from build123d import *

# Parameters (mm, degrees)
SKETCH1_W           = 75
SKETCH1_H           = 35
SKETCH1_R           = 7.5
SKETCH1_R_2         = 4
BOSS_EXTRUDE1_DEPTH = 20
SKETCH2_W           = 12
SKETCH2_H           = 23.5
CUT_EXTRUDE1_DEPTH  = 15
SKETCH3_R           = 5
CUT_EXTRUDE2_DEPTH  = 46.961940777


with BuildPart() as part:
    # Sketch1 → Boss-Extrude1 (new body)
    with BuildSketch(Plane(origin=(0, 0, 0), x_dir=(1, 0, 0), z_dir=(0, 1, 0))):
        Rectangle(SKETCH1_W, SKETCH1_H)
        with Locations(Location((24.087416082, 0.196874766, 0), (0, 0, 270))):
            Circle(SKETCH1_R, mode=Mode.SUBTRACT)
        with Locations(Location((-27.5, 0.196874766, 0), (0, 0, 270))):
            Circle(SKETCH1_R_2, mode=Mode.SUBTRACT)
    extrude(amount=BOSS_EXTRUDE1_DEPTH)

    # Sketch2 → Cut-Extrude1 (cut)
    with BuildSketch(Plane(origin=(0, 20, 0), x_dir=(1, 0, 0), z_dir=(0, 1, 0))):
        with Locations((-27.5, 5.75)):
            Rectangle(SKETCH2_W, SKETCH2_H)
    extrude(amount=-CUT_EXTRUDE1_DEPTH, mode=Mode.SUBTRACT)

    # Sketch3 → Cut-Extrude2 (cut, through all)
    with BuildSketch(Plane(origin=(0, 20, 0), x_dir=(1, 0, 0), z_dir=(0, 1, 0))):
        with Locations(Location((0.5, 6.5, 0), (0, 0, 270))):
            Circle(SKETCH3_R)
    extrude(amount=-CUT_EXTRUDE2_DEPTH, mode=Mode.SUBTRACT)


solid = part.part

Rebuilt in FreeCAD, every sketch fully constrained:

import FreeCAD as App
import Part
import Sketcher


def add_polygon(sketch, points):
    """Adds a closed chain of lines whose ends are joined by coincident constraints."""
    first, n = sketch.GeometryCount, len(points)
    for a, b in zip(points, points[1:] + points[:1]):
        sketch.addGeometry(Part.LineSegment(App.Vector(*a, 0), App.Vector(*b, 0)), False)
    for i in range(n):
        sketch.addConstraint(Sketcher.Constraint("Coincident", first + i, 2, first + (i + 1) % n, 1))

doc = App.newDocument("Part")
body = doc.addObject("PartDesign::Body", "Body")

sketch1 = body.newObject("Sketcher::SketchObject", "Sketch")
sketch1.AttachmentSupport = (doc.getObject("XZ_Plane"), [""])
sketch1.MapMode = "FlatFace"
add_polygon(sketch1, [(-37.5, -17.5), (-37.5, 17.5), (37.5, 17.5), (37.5, -17.5)])
sketch1.addGeometry(Part.Circle(App.Vector(-27.5, -0.2, 0), App.Vector(0, 0, 1), 4), False)
sketch1.addGeometry(Part.Circle(App.Vector(24.1, -0.2, 0), App.Vector(0, 0, 1), 7.5), False)
sketch1.addConstraint([
    Sketcher.Constraint("Vertical", 0),
    Sketcher.Constraint("Horizontal", 1),
    Sketcher.Constraint("Vertical", 2),
    Sketcher.Constraint("Horizontal", 3),
    Sketcher.Constraint("Symmetric", 0, 2, 2, 2, -1, 1),
    Sketcher.Constraint("Horizontal", 4, 3, 5, 3),
    Sketcher.Constraint("Diameter", 4, 8.0),
    Sketcher.Constraint("Diameter", 5, 15.0),
    Sketcher.Constraint("DistanceX", 1, 1, 1, 2, 75.0),
    Sketcher.Constraint("DistanceY", 0, 1, 0, 2, 35.0),
    Sketcher.Constraint("DistanceX", 0, 2, 4, 3, 10.0),
    Sketcher.Constraint("DistanceY", 4, 3, -1, 1, 0.196875),
    Sketcher.Constraint("DistanceX", -1, 1, 5, 3, 24.087416),
])
pad1 = body.newObject("PartDesign::Pad", "Pad")
pad1.Profile = sketch1
pad1.Length = 20
pad1.Reversed = True

sketch2 = body.newObject("Sketcher::SketchObject", "Sketch001")
sketch2.AttachmentSupport = (doc.getObject("XZ_Plane"), [""])
sketch2.MapMode = "FlatFace"
sketch2.AttachmentOffset = App.Placement(App.Vector(0, 0, -20), App.Rotation())
add_polygon(sketch2, [(-34, -18), (-34, 6), (-22, 6), (-22, -18)])
sketch2.addConstraint([
    Sketcher.Constraint("Vertical", 0),
    Sketcher.Constraint("Horizontal", 1),
    Sketcher.Constraint("Vertical", 2),
    Sketcher.Constraint("Horizontal", 3),
    Sketcher.Constraint("DistanceX", 1, 1, 1, 2, 12.0),
    Sketcher.Constraint("DistanceY", 0, 1, 0, 2, 23.5),
    Sketcher.Constraint("DistanceY", -1, 1, 0, 2, 6.0),
    Sketcher.Constraint("DistanceX", 0, 2, -1, 1, 33.5),
])
pocket1 = body.newObject("PartDesign::Pocket", "Pocket")
pocket1.Profile = sketch2
pocket1.Length = 15
pocket1.Reversed = True

sketch3 = body.newObject("Sketcher::SketchObject", "Sketch002")
sketch3.AttachmentSupport = (doc.getObject("XZ_Plane"), [""])
sketch3.MapMode = "FlatFace"
sketch3.AttachmentOffset = App.Placement(App.Vector(0, 0, -20), App.Rotation())
sketch3.addGeometry(Part.Circle(App.Vector(0, -6, 0), App.Vector(0, 0, 1), 5), False)
sketch3.addConstraint([
    Sketcher.Constraint("Diameter", 0, 10.0),
    Sketcher.Constraint("DistanceX", -1, 1, 0, 3, 0.5),
    Sketcher.Constraint("DistanceY", 0, 3, -1, 1, 6.5),
])
pocket2 = body.newObject("PartDesign::Pocket", "Pocket001")
pocket2.Profile = sketch3
pocket2.Type = "ThroughAll"
pocket2.Reversed = True

doc.recompute()
